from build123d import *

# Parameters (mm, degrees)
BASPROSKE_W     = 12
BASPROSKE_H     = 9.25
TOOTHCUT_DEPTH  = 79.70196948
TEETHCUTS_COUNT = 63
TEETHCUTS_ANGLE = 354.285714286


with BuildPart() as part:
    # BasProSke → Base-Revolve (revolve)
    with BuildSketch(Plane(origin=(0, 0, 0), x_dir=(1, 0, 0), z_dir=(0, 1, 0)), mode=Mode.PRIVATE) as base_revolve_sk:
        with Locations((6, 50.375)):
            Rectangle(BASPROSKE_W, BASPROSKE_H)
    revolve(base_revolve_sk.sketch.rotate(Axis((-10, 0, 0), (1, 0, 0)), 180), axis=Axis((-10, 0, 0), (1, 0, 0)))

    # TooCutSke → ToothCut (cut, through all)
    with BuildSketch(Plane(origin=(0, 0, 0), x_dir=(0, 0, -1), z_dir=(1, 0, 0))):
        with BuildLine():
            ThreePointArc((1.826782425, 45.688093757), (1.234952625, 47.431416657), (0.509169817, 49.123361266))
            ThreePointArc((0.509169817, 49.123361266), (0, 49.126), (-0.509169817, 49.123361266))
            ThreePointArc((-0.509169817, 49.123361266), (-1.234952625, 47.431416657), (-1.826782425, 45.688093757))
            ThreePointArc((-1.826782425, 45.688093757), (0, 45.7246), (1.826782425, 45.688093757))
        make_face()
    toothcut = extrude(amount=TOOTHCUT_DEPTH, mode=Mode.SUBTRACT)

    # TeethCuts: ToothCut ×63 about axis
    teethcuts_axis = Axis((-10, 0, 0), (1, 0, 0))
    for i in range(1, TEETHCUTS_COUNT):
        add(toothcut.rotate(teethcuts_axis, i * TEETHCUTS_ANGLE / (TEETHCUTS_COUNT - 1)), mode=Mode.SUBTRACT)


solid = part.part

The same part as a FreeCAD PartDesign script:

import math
import FreeCAD as App
import Part
import Sketcher
from FreeCAD import Vector


def add_polygon(sketch, points):
    """Adds a closed chain of lines whose ends are joined by coincident constraints."""
    first, n = sketch.GeometryCount, len(points)
    for a, b in zip(points, points[1:] + points[:1]):
        sketch.addGeometry(Part.LineSegment(App.Vector(*a, 0), App.Vector(*b, 0)), False)
    for i in range(n):
        sketch.addConstraint(Sketcher.Constraint("Coincident", first + i, 2, first + (i + 1) % n, 1))

doc = App.newDocument("Part")
body = doc.addObject("PartDesign::Body", "Body")

# Sketch on XZ plane
sketch1 = doc.addObject("Sketcher::SketchObject", "Sketch")
body.addObject(sketch1)
sketch1.AttachmentSupport = (doc.XZ_Plane, [""])
sketch1.MapMode = "FlatFace"
add_polygon(sketch1, [(0, -55), (0, -46), (12, -46), (12, -55)])  # lines 0-3
sketch1.addConstraint([
    Sketcher.Constraint("Vertical", 0),
    Sketcher.Constraint("Horizontal", 1),
    Sketcher.Constraint("Vertical", 2),
    Sketcher.Constraint("Horizontal", 3),
    Sketcher.Constraint("PointOnObject", 0, 2, -2),
    Sketcher.Constraint("DistanceX", 1, 1, 1, 2, 12.0),
    Sketcher.Constraint("DistanceY", 2, 2, -1, 1, 55.0),
    Sketcher.Constraint("DistanceY", 0, 1, 0, 2, 9.25),
])
revolution = doc.addObject("PartDesign::Revolution", "Revolution")
body.addObject(revolution)
revolution.Profile = sketch1
revolution.ReferenceAxis = (sketch1, ["H_Axis"])
revolution.Angle = 360

# Sketch on YZ plane
sketch2 = doc.addObject("Sketcher::SketchObject", "Sketch001")
body.addObject(sketch2)
sketch2.AttachmentSupport = (doc.YZ_Plane, [""])
sketch2.MapMode = "FlatFace"
sketch2.addGeometry([
    Part.ArcOfCircle(Part.Circle(Vector(39, 20.8, 0), Vector(0, 0, 1), 23.6), math.radians(-73.48), math.radians(-64.55)),
    Part.ArcOfCircle(Part.Circle(Vector(0, 0, 0), Vector(0, 0, 1), 49.1), math.radians(-0.59), math.radians(0.59)),
    Part.ArcOfCircle(Part.Circle(Vector(39, -20.8, 0), Vector(0, 0, 1), 23.6), math.radians(64.55), math.radians(73.48)),
    Part.ArcOfCircle(Part.Circle(Vector(0, 0, 0), Vector(0, 0, 1), 45.7), math.radians(-2.29), math.radians(2.29)),
], False)
sketch2.addConstraint([
    Sketcher.Constraint("Coincident", 0, 2, 1, 1),
    Sketcher.Constraint("Coincident", 1, 2, 2, 1),
    Sketcher.Constraint("Coincident", 2, 2, 3, 2),
    Sketcher.Constraint("Coincident", 3, 1, 0, 1),
    Sketcher.Constraint("Coincident", 1, 3, -1, 1),
    Sketcher.Constraint("Coincident", 3, 3, -1, 1),
    Sketcher.Constraint("Equal", 0, 2),
    Sketcher.Constraint("Symmetric", 0, 3, 2, 3, -1),
    Sketcher.Constraint("Radius", 0, 23.625),
    Sketcher.Constraint("Radius", 3, 45.7246),
    Sketcher.Constraint("Radius", 1, 49.125995),
    Sketcher.Constraint("DistanceY", 0, 2, -1, 1, 0.50917),
    Sketcher.Constraint("DistanceX", 1, 3, 0, 3, 38.970918),
])
pocket1 = doc.addObject("PartDesign::Pocket", "Pocket")
body.addObject(pocket1)
pocket1.Profile = sketch2
pocket1.Type = "ThroughAll"
pocket1.Reversed = True
doc.recompute()

polarpattern = doc.addObject("PartDesign::PolarPattern", "PolarPattern")
body.addObject(polarpattern)
polarpattern.Originals = [pocket1]
polarpattern.Axis = (doc.X_Axis, [""])
polarpattern.Angle = 360
polarpattern.Occurrences = 63
body.Tip = polarpattern

doc.recompute()
